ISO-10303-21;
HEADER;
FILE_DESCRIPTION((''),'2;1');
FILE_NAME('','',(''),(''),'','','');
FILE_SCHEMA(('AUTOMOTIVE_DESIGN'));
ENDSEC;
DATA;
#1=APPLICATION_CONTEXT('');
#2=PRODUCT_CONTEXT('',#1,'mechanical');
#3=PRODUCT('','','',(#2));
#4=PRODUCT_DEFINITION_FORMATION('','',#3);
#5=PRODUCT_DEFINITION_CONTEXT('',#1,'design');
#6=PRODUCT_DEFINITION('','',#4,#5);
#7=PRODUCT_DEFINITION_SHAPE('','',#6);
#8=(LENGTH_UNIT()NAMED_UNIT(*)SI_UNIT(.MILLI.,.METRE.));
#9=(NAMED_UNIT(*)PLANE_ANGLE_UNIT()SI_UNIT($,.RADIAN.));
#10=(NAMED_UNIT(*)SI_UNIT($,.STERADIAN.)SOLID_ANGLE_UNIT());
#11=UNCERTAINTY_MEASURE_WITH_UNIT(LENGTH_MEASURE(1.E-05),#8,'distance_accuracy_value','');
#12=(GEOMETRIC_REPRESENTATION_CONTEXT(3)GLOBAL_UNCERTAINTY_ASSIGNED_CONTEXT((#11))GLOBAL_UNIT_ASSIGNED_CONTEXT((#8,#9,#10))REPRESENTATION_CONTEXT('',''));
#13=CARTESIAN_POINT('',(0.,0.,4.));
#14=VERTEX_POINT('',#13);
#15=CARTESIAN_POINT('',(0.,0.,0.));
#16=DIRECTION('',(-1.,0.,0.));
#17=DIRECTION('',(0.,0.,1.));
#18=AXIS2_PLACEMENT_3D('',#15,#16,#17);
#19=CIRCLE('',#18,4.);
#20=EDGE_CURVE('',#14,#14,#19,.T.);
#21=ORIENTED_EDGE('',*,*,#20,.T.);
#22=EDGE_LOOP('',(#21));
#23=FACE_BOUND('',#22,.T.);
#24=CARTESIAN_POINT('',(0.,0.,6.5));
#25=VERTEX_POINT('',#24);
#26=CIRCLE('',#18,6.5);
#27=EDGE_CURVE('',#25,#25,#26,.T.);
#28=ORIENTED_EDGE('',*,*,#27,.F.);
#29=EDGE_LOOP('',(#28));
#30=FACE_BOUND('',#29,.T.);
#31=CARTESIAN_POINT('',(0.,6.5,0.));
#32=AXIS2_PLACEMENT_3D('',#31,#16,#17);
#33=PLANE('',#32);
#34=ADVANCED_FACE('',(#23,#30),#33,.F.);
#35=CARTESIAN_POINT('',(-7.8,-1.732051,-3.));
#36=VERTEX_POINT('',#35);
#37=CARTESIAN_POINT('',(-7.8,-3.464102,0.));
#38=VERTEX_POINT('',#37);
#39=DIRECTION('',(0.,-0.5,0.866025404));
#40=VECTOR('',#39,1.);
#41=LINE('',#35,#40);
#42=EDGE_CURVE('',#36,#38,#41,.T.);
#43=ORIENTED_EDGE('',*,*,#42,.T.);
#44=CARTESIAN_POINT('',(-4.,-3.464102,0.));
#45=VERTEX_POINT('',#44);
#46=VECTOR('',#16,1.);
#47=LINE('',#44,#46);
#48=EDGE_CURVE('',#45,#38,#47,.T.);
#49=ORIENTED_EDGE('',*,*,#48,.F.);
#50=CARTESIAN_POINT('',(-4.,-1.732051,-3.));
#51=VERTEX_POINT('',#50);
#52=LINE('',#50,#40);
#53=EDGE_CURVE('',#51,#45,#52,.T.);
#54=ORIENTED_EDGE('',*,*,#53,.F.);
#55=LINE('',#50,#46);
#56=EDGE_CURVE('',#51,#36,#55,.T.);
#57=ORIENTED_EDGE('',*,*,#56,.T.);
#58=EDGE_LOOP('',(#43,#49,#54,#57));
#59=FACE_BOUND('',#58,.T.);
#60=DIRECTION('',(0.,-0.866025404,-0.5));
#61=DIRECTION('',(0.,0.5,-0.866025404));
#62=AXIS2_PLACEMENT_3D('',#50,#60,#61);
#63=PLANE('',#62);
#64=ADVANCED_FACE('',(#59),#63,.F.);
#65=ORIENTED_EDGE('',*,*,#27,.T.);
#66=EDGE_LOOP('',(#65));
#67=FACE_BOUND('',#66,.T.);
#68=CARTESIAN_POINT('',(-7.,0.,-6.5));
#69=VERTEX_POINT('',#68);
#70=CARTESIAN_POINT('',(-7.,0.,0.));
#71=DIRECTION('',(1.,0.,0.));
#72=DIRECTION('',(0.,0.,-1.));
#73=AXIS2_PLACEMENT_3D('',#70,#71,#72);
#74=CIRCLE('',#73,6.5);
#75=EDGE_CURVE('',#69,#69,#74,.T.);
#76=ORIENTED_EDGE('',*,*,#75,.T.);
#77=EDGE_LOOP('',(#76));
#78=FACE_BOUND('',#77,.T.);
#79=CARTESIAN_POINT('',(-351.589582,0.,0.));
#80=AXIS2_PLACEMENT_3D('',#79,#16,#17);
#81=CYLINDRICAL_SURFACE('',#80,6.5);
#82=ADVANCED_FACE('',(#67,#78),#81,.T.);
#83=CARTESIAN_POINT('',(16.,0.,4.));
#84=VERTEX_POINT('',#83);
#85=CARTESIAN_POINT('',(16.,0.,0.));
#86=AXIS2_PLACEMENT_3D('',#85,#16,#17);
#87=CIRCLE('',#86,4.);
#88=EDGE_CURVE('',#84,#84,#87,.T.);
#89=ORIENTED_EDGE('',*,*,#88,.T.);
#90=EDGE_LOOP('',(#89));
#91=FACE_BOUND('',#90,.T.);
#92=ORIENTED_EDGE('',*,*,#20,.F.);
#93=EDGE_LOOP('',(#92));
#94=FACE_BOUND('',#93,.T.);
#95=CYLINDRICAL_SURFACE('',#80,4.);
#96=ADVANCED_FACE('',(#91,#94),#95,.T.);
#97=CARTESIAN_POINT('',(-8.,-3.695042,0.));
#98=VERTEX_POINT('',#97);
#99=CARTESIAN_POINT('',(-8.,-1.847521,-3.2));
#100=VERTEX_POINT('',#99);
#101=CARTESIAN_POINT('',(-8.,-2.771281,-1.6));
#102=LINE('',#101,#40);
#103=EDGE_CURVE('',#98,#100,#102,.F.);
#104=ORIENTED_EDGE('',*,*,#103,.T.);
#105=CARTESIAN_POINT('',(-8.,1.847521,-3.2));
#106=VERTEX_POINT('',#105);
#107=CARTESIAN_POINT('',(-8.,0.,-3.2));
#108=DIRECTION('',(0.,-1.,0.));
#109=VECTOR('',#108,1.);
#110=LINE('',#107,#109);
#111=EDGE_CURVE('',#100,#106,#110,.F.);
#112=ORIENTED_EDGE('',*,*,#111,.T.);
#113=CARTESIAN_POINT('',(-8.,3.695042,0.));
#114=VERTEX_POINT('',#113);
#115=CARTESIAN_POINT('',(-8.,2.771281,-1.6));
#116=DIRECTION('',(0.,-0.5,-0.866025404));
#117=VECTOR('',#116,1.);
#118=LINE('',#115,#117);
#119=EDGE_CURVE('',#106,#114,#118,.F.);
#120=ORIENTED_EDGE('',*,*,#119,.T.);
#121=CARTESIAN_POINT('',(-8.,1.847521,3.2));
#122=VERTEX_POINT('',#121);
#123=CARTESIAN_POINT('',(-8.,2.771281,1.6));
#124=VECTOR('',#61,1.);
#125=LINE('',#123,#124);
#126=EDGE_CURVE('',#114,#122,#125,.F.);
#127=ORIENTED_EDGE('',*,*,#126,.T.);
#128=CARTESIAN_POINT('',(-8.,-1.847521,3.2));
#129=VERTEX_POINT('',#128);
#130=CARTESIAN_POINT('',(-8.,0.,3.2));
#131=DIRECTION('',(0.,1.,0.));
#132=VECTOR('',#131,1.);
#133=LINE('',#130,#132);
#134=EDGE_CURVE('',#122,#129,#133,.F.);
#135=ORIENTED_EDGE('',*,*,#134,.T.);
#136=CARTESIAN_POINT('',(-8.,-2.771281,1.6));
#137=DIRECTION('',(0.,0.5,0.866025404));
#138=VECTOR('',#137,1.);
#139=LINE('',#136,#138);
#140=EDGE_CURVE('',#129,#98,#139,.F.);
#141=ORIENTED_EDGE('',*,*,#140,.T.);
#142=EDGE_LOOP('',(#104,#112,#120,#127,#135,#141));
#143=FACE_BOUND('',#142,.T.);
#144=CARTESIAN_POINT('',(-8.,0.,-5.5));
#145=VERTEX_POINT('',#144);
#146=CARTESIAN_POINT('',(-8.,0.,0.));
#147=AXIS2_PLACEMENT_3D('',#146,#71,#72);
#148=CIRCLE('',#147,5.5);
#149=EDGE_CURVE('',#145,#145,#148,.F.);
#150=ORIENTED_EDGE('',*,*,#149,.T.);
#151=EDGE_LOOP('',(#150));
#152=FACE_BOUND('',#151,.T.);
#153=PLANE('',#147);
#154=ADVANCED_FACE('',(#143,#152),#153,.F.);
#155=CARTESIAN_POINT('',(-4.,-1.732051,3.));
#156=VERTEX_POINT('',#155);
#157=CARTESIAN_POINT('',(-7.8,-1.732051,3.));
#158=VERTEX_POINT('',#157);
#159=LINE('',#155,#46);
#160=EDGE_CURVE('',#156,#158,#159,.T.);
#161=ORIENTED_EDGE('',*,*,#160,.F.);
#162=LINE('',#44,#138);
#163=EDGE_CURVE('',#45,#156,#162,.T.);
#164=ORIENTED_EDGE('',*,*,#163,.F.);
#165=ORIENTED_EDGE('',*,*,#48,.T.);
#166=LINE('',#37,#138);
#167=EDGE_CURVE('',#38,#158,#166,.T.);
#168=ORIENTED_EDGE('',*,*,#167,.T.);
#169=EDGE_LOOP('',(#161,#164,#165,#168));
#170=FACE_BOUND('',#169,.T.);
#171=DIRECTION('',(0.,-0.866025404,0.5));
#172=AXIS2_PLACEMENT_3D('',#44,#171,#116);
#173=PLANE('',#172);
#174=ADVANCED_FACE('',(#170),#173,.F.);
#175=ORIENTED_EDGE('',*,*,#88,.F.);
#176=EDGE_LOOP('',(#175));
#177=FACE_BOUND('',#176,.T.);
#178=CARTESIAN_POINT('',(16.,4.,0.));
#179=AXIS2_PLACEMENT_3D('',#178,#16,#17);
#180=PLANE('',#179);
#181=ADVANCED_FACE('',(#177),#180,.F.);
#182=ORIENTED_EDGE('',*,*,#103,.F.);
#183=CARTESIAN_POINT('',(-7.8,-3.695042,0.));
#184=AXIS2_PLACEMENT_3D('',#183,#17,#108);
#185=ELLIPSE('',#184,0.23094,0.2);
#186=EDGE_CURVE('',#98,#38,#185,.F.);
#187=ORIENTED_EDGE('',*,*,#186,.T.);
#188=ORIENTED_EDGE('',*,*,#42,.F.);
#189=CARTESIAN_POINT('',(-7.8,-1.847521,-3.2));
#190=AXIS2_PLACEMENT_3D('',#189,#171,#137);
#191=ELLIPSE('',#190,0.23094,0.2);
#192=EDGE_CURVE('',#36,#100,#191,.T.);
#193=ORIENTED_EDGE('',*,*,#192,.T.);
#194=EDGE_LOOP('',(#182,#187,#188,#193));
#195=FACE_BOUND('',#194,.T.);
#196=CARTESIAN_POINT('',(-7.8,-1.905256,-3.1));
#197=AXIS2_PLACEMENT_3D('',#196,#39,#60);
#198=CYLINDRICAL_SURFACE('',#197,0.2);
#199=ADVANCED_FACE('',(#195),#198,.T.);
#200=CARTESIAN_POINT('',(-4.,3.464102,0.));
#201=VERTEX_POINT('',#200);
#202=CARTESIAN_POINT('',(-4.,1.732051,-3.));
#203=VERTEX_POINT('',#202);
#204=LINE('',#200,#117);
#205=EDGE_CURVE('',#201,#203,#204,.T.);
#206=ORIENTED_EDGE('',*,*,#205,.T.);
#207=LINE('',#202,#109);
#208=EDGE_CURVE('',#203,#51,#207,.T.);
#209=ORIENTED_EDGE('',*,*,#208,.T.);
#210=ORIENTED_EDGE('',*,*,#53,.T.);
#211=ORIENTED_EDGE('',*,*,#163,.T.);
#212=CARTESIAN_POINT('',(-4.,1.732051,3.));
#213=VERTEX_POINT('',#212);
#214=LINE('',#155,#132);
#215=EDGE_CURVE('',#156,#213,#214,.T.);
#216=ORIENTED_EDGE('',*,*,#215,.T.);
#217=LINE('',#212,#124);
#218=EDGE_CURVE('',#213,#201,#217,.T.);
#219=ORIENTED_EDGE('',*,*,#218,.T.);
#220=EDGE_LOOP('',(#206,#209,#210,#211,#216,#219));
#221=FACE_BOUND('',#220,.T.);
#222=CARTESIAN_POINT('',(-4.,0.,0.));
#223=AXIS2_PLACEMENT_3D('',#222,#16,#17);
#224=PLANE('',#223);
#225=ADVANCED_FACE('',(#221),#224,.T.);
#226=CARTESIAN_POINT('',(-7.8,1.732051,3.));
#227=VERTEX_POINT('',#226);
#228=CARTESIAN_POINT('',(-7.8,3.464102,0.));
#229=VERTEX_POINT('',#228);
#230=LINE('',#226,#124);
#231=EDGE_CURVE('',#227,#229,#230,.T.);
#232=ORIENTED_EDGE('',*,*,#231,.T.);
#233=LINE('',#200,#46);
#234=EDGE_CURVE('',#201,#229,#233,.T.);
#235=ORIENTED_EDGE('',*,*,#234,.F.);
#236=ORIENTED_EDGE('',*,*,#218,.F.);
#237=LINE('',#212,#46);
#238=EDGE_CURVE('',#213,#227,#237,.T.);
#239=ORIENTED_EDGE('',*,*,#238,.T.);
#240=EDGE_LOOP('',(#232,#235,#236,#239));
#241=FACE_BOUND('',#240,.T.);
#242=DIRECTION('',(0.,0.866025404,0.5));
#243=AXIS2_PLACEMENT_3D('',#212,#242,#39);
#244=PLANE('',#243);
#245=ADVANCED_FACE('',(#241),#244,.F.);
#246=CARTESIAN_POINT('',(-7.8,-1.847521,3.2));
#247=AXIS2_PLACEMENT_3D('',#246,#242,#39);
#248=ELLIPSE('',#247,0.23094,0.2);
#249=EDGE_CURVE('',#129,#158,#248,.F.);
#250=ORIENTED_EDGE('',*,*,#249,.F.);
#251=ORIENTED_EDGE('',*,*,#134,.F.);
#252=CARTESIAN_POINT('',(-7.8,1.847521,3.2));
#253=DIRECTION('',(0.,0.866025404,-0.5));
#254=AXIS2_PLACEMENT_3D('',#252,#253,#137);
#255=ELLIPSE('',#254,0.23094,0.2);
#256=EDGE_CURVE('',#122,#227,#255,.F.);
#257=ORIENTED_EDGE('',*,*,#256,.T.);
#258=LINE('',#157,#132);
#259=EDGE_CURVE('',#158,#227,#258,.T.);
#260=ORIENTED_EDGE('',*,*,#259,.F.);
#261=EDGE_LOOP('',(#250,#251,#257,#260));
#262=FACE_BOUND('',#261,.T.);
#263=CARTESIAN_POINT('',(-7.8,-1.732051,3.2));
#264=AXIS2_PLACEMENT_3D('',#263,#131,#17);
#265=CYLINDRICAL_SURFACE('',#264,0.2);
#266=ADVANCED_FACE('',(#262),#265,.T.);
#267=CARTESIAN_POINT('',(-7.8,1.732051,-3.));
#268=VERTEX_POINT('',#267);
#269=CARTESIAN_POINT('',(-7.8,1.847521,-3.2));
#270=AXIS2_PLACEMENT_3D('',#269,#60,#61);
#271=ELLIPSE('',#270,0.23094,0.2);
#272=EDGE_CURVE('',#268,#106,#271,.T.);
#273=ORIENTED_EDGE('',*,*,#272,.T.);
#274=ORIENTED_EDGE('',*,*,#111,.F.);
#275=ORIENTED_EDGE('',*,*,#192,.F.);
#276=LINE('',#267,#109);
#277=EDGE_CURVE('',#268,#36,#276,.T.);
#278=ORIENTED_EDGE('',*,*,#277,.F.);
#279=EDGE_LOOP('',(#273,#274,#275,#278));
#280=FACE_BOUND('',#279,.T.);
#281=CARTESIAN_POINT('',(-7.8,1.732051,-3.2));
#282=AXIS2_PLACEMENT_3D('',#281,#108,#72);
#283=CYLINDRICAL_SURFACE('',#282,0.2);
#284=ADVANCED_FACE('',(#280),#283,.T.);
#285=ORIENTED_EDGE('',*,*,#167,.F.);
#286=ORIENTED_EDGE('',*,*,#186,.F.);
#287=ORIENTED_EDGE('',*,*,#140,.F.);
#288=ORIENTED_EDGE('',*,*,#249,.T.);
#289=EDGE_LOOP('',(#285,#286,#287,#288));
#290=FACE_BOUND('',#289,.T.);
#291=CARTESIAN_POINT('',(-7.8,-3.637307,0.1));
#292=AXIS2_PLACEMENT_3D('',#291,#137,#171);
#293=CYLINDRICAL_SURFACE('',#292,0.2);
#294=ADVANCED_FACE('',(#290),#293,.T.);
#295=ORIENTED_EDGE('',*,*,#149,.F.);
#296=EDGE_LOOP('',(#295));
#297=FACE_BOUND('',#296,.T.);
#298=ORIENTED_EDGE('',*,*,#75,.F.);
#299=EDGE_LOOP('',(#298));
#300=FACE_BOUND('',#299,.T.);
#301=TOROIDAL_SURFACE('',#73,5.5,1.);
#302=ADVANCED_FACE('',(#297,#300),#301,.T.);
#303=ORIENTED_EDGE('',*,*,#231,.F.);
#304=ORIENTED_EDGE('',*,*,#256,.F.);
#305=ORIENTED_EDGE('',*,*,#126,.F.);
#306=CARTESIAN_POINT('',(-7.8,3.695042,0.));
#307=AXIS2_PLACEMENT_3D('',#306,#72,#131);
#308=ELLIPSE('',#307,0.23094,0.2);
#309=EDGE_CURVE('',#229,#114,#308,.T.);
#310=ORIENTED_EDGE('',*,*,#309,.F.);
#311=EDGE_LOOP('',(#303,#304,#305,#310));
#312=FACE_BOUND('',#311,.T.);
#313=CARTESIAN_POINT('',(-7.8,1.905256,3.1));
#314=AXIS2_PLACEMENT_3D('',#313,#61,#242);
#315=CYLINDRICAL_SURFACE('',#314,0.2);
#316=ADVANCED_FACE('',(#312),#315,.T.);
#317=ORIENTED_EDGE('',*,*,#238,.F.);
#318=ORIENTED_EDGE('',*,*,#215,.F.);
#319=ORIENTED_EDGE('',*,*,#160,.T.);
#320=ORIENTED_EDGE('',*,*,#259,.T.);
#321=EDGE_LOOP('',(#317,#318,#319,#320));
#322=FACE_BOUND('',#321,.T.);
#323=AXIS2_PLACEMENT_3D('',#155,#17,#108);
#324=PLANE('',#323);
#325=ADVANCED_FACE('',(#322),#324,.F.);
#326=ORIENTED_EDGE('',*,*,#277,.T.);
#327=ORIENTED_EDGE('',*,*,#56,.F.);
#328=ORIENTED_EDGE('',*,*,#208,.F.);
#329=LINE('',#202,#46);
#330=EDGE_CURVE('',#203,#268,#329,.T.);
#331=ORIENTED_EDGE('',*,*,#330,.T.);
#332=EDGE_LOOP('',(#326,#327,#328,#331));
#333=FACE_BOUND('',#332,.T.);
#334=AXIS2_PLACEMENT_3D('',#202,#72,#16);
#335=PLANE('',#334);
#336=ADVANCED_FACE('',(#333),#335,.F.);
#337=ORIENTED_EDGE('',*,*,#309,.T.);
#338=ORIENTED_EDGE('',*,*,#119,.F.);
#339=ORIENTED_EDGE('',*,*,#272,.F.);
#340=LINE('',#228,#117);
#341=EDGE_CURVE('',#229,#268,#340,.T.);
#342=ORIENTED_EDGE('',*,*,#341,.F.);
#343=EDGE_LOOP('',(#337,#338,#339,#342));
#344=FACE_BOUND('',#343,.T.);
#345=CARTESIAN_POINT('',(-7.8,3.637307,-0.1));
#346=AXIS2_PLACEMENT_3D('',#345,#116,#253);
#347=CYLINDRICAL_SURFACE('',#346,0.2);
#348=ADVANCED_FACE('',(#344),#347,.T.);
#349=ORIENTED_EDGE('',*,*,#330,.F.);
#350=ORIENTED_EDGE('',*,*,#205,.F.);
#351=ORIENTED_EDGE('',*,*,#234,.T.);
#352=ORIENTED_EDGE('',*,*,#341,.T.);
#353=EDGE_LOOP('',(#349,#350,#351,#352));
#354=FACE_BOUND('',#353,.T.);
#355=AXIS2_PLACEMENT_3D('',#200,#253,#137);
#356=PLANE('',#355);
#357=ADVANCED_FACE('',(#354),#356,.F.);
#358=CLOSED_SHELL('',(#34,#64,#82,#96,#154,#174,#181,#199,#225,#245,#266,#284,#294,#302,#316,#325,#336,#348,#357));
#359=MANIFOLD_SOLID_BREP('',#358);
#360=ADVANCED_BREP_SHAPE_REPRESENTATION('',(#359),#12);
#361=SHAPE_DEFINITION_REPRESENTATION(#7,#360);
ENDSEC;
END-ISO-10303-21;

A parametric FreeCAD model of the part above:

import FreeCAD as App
import Part
import Sketcher

V = App.Vector
Q = App.Units.Quantity


def edges_at(feature, points):
    """Names of the edges that pass closest to the given points."""
    edges = feature.Shape.Edges
    near = lambda p: min(range(len(edges)), key=lambda i: edges[i].distToShape(Part.Vertex(*p))[0])
    return sorted({f"Edge{near(p) + 1}" for p in points})


def add_polygon(sketch, points):
    """Adds a closed chain of lines whose ends are joined by coincident constraints."""
    first, n = sketch.GeometryCount, len(points)
    for a, b in zip(points, points[1:] + points[:1]):
        sketch.addGeometry(Part.LineSegment(App.Vector(*a, 0), App.Vector(*b, 0)), False)
    for i in range(n):
        sketch.addConstraint(Sketcher.Constraint("Coincident", first + i, 2, first + (i + 1) % n, 1))

doc = App.newDocument("Part")
body = doc.addObject("PartDesign::Body", "Body")

# Sketch on XY plane
sketch1 = doc.addObject("Sketcher::SketchObject", "Sketch")
body.addObject(sketch1)
sketch1.AttachmentSupport = (doc.XY_Plane, [""])
sketch1.MapMode = "FlatFace"
add_polygon(sketch1, [(-8, 6.5), (-8, 0), (16, 0), (16, 4), (0, 4), (0, 6.5)])  # lines 0-5
sketch1.addConstraint([
    Sketcher.Constraint("Vertical", 0),
    Sketcher.Constraint("Horizontal", 1),
    Sketcher.Constraint("Vertical", 2),
    Sketcher.Constraint("Horizontal", 3),
    Sketcher.Constraint("Vertical", 4),
    Sketcher.Constraint("Horizontal", 5),
    Sketcher.Constraint("PointOnObject", 0, 2, -1),
    Sketcher.Constraint("PointOnObject", 3, 2, -2),
    Sketcher.Constraint("DistanceX", 1, 1, 1, 2, Q("24 mm")),
    Sketcher.Constraint("DistanceX", 3, 2, 3, 1, Q("16 mm")),
    Sketcher.Constraint("DistanceY", 2, 1, 2, 2, Q("4 mm")),
    Sketcher.Constraint("DistanceY", 0, 2, 0, 1, Q("6.5 mm")),
])
revolution = doc.addObject("PartDesign::Revolution", "Revolution")
body.addObject(revolution)
revolution.Profile = sketch1
revolution.ReferenceAxis = (sketch1, ["H_Axis"])
revolution.Angle = 360

# Sketch on YZ plane
sketch2 = doc.addObject("Sketcher::SketchObject", "Sketch001")
body.addObject(sketch2)
sketch2.AttachmentSupport = (doc.YZ_Plane, [""])
sketch2.MapMode = "FlatFace"
sketch2.AttachmentOffset = App.Placement(V(0, 0, -8), App.Rotation())
add_polygon(sketch2, [(-3.5, 0), (-1.7, 3), (1.7, 3), (3.5, 0), (1.7, -3), (-1.7, -3)])  # lines 0-5
sketch2.addConstraint([
    Sketcher.Constraint("Horizontal", 1),
    Sketcher.Constraint("Horizontal", 4),
    Sketcher.Constraint("Symmetric", 0, 2, 3, 2, -1, 1),
    Sketcher.Constraint("Symmetric", 2, 2, 5, 2, -1, 1),
    Sketcher.Constraint("PointOnObject", 2, 2, -1),
    Sketcher.Constraint("Parallel", 2, 5),
    Sketcher.Constraint("Vertical", 1, 2, 3, 2),
    Sketcher.Constraint("Angle", 0, Q("60 deg")),
    Sketcher.Constraint("DistanceY", -1, 1, 0, 2, Q("3 mm")),
    Sketcher.Constraint("DistanceX", 1, 1, 1, 2, Q("3.464102 mm")),
])
pocket1 = doc.addObject("PartDesign::Pocket", "Pocket")
body.addObject(pocket1)
pocket1.Profile = sketch2
pocket1.Length = 4
pocket1.Reversed = True
doc.recompute()

fillet = doc.addObject("PartDesign::Fillet", "Fillet")
body.addObject(fillet)
fillet.Base = (pocket1, edges_at(pocket1, [(-8, -6.5, 0)]))
fillet.Radius = 1
doc.recompute()

fillet2 = doc.addObject("PartDesign::Fillet", "Fillet001")
body.addObject(fillet2)
fillet2.Base = (fillet, edges_at(fillet, [
    (-8, -2.598, -1.5),
    (-8, -2.598, 1.5),
    (-8, 0, 3),
    (-8, 2.598, 1.5),
    (-8, 2.598, -1.5),
    (-8, 0, -3),
]))
fillet2.Radius = 0.2

doc.recompute()
